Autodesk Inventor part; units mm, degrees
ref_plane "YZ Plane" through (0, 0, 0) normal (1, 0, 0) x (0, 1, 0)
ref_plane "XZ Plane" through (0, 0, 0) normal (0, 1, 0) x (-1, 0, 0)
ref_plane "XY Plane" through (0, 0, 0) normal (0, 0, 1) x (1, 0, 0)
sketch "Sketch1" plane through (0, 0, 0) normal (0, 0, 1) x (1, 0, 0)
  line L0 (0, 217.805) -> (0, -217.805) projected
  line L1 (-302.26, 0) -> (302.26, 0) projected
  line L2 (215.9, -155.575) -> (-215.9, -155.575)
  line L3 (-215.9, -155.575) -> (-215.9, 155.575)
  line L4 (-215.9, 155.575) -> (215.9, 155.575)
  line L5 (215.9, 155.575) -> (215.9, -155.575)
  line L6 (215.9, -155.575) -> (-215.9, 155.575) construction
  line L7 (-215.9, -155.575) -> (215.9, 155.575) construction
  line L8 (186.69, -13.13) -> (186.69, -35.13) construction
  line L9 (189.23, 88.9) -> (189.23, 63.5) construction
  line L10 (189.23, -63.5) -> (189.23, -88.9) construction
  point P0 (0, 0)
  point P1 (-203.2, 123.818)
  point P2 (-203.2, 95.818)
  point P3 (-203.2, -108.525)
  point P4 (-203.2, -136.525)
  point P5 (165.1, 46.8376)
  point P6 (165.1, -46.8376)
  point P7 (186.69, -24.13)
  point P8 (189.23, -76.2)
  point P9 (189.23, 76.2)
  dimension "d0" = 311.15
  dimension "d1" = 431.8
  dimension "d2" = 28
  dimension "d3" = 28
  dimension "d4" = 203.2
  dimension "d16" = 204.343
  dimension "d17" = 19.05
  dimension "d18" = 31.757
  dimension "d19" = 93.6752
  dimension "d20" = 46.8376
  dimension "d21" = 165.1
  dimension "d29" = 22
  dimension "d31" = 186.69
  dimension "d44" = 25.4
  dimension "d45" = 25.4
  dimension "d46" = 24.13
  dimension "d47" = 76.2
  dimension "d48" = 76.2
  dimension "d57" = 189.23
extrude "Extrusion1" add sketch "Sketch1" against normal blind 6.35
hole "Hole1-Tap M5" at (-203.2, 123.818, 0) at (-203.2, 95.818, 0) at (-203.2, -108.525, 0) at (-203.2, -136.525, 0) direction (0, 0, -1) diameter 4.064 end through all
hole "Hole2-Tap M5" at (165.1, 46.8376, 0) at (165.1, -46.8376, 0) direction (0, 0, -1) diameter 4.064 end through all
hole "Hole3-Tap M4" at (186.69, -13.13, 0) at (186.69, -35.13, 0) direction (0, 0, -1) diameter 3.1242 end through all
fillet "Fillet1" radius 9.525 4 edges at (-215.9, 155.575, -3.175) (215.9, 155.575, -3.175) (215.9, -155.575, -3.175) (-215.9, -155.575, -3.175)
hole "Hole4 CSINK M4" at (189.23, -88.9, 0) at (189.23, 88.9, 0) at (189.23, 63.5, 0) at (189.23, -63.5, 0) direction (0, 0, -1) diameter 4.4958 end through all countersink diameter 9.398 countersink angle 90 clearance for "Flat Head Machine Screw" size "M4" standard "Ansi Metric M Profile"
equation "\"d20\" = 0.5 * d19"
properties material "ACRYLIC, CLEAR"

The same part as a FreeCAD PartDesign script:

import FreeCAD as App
import Part
import Sketcher
from FreeCAD import Vector
Q = App.Units.Quantity


def edges_at(feature, points):
    """Names of the edges that pass closest to the given points."""
    edges = feature.Shape.Edges
    near = lambda p: min(range(len(edges)), key=lambda i: edges[i].distToShape(Part.Vertex(*p))[0])
    return sorted({f"Edge{near(p) + 1}" for p in points})

doc = App.newDocument("Part")
body = doc.addObject("PartDesign::Body", "Body")

# Sketch on XY plane
sketch1 = body.newObject("Sketcher::SketchObject", "Sketch")
sketch1.AttachmentSupport = (doc.getObject("XY_Plane"), [""])
sketch1.MapMode = "FlatFace"
sketch1.addGeometry([
    Part.LineSegment(Vector(216, 156, 0), Vector(-216, 156, 0)),
    Part.LineSegment(Vector(-216, 156, 0), Vector(-216, -156, 0)),
    Part.LineSegment(Vector(-216, -156, 0), Vector(216, -156, 0)),
    Part.LineSegment(Vector(216, -156, 0), Vector(216, 156, 0)),
], False)
sketch1.addConstraint([
    Sketcher.Constraint("Coincident", 0, 2, 1, 1),
    Sketcher.Constraint("Coincident", 1, 2, 2, 1),
    Sketcher.Constraint("Coincident", 2, 2, 3, 1),
    Sketcher.Constraint("Coincident", 3, 2, 0, 1),
    Sketcher.Constraint("Horizontal", 0),
    Sketcher.Constraint("Vertical", 1),
    Sketcher.Constraint("Horizontal", 2),
    Sketcher.Constraint("Vertical", 3),
    Sketcher.Constraint("Symmetric", 0, 2, 2, 2, -1, 1),
    Sketcher.Constraint("DistanceX", 0, 2, 0, 1, Q("17 in")),
    Sketcher.Constraint("DistanceY", 1, 2, 1, 1, Q("12.25 in")),
])
pad1 = body.newObject("PartDesign::Pad", "Pad")
pad1.Profile = sketch1
pad1.Length = Q("0.25 in")
pad1.Reversed = True

# Sketch on XY plane
sketch2 = body.newObject("Sketcher::SketchObject", "Sketch001")
sketch2.AttachmentSupport = (doc.getObject("XY_Plane"), [""])
sketch2.MapMode = "FlatFace"
sketch2.addGeometry([
    Part.Circle(Vector(-203.2, 123.8, 0), Vector(0, 0, 1), 2),
    Part.Circle(Vector(-203.2, 95.8, 0), Vector(0, 0, 1), 2),
    Part.Circle(Vector(-203.2, -108.5, 0), Vector(0, 0, 1), 2),
    Part.Circle(Vector(-203.2, -136.5, 0), Vector(0, 0, 1), 2),
], False)
sketch2.addConstraint([
    Sketcher.Constraint("Equal", 0, 1),
    Sketcher.Constraint("Equal", 1, 2),
    Sketcher.Constraint("Equal", 2, 3),
    Sketcher.Constraint("Vertical", 0, 3, 1, 3),
    Sketcher.Constraint("Vertical", 1, 3, 2, 3),
    Sketcher.Constraint("Vertical", 2, 3, 3, 3),
    Sketcher.Constraint("Diameter", 0, Q("0.16 in")),
    Sketcher.Constraint("DistanceX", 0, 3, -1, 1, Q("8 in")),
    Sketcher.Constraint("DistanceY", 3, 3, -1, 1, Q("5.375 in")),
    Sketcher.Constraint("DistanceY", 2, 3, 1, 3, Q("8.045 in")),
    Sketcher.Constraint("DistanceY", -1, 1, 0, 3, Q("123.818 mm")),
    Sketcher.Constraint("DistanceY", -1, 1, 1, 3, Q("95.818 mm")),
])
doc.recompute()
hole = body.newObject("PartDesign::Hole", "Hole")
hole.Profile = sketch2
hole.ThreadType = "None"
hole.Diameter = Q("0.16 in")
hole.DepthType = "ThroughAll"

# Sketch on XY plane
sketch3 = body.newObject("Sketcher::SketchObject", "Sketch002")
sketch3.AttachmentSupport = (doc.getObject("XY_Plane"), [""])
sketch3.MapMode = "FlatFace"
sketch3.addGeometry([
    Part.Circle(Vector(165.1, 46.8, 0), Vector(0, 0, 1), 2),
    Part.Circle(Vector(165.1, -46.8, 0), Vector(0, 0, 1), 2),
], False)
sketch3.addConstraint([
    Sketcher.Constraint("Equal", 0, 1),
    Sketcher.Constraint("Symmetric", 0, 3, 1, 3, -1),
    Sketcher.Constraint("Diameter", 0, Q("0.16 in")),
    Sketcher.Constraint("DistanceX", -1, 1, 0, 3, Q("6.5 in")),
    Sketcher.Constraint("DistanceY", -1, 1, 0, 3, Q("1.844 in")),
])
doc.recompute()
hole2 = body.newObject("PartDesign::Hole", "Hole001")
hole2.Profile = sketch3
hole2.ThreadType = "None"
hole2.Diameter = Q("0.16 in")
hole2.DepthType = "ThroughAll"

# Sketch on XY plane
sketch4 = body.newObject("Sketcher::SketchObject", "Sketch003")
sketch4.AttachmentSupport = (doc.getObject("XY_Plane"), [""])
sketch4.MapMode = "FlatFace"
sketch4.addGeometry([
    Part.Circle(Vector(186.7, -13.1, 0), Vector(0, 0, 1), 1.6),
    Part.Circle(Vector(186.7, -35.1, 0), Vector(0, 0, 1), 1.6),
], False)
sketch4.addConstraint([
    Sketcher.Constraint("Equal", 0, 1),
    Sketcher.Constraint("Vertical", 0, 3, 1, 3),
    Sketcher.Constraint("Diameter", 0, Q("0.123 in")),
    Sketcher.Constraint("DistanceX", -1, 1, 0, 3, Q("7.35 in")),
    Sketcher.Constraint("DistanceY", 0, 3, -1, 1, Q("13.13 mm")),
    Sketcher.Constraint("DistanceY", 1, 3, -1, 1, Q("35.13 mm")),
])
doc.recompute()
hole3 = body.newObject("PartDesign::Hole", "Hole002")
hole3.Profile = sketch4
hole3.ThreadType = "None"
hole3.Diameter = Q("0.123 in")
hole3.DepthType = "ThroughAll"
doc.recompute()

fillet = body.newObject("PartDesign::Fillet", "Fillet")
fillet.Base = (hole3, edges_at(hole3, [
    (-215.9, 155.575, -3.175),
    (215.9, 155.575, -3.175),
    (215.9, -155.575, -3.175),
    (-215.9, -155.575, -3.175),
]))
fillet.Radius = Q("0.375 in")

# Sketch on XY plane
sketch5 = body.newObject("Sketcher::SketchObject", "Sketch004")
sketch5.AttachmentSupport = (doc.getObject("XY_Plane"), [""])
sketch5.MapMode = "FlatFace"
sketch5.addGeometry([
    Part.Circle(Vector(189.2, -88.9, 0), Vector(0, 0, 1), 2.2),
    Part.Circle(Vector(189.2, 88.9, 0), Vector(0, 0, 1), 2.2),
    Part.Circle(Vector(189.2, 63.5, 0), Vector(0, 0, 1), 2.2),
    Part.Circle(Vector(189.2, -63.5, 0), Vector(0, 0, 1), 2.2),
], False)
sketch5.addConstraint([
    Sketcher.Constraint("Equal", 0, 1),
    Sketcher.Constraint("Equal", 1, 2),
    Sketcher.Constraint("Equal", 2, 3),
    Sketcher.Constraint("Symmetric", 0, 3, 1, 3, -1),
    Sketcher.Constraint("Symmetric", 2, 3, 3, 3, -1),
    Sketcher.Constraint("Vertical", 1, 3, 2, 3),
    Sketcher.Constraint("Diameter", 0, Q("0.177 in")),
    Sketcher.Constraint("DistanceY", 0, 3, 1, 3, Q("7 in")),
    Sketcher.Constraint("DistanceY", 2, 3, 1, 3, Q("1 in")),
    Sketcher.Constraint("DistanceX", -1, 1, 0, 3, Q("7.45 in")),
])
doc.recompute()
hole4 = body.newObject("PartDesign::Hole", "Hole003")
hole4.Profile = sketch5
hole4.ThreadType = "None"
hole4.Diameter = Q("0.177 in")
hole4.DepthType = "ThroughAll"
hole4.HoleCutType = "Countersink"
hole4.HoleCutDiameter = Q("0.37 in")
hole4.HoleCutCountersinkAngle = 90

doc.recompute()
